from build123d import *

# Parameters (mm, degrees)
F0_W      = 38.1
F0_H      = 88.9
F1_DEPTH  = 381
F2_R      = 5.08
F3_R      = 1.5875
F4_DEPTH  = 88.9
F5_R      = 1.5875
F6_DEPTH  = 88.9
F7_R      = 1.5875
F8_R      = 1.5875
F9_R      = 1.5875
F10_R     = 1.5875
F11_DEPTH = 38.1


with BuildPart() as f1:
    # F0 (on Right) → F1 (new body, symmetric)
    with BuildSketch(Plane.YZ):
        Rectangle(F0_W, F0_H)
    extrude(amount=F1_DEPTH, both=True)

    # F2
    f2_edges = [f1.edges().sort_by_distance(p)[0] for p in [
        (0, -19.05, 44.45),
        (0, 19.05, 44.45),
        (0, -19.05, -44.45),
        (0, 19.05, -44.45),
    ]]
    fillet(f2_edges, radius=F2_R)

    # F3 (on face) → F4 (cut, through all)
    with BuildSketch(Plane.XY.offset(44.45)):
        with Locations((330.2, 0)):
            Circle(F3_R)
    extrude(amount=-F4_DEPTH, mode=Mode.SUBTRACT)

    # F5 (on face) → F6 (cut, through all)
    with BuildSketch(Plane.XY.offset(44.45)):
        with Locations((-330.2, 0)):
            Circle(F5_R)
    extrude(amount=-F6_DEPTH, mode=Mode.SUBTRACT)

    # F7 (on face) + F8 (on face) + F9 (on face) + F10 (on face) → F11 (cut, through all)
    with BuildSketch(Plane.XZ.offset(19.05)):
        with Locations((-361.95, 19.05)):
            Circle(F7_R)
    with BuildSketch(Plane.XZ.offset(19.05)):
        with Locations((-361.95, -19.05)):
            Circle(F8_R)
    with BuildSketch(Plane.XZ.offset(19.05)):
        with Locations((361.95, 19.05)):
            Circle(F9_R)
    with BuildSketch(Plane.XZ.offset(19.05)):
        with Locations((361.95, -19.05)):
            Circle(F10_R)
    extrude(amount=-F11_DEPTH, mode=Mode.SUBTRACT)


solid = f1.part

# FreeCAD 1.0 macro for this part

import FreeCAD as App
import Part
import Sketcher

V = App.Vector
Q = App.Units.Quantity


def edges_at(feature, points):
    """Names of the edges that pass closest to the given points."""
    edges = feature.Shape.Edges
    near = lambda p: min(range(len(edges)), key=lambda i: edges[i].distToShape(Part.Vertex(*p))[0])
    return sorted({f"Edge{near(p) + 1}" for p in points})


def add_polygon(sketch, points):
    """Adds a closed chain of lines whose ends are joined by coincident constraints."""
    first, n = sketch.GeometryCount, len(points)
    for a, b in zip(points, points[1:] + points[:1]):
        sketch.addGeometry(Part.LineSegment(App.Vector(*a, 0), App.Vector(*b, 0)), False)
    for i in range(n):
        sketch.addConstraint(Sketcher.Constraint("Coincident", first + i, 2, first + (i + 1) % n, 1))

doc = App.newDocument("Part")
body = doc.addObject("PartDesign::Body", "Body")

sketch1 = body.newObject("Sketcher::SketchObject", "Sketch")
sketch1.AttachmentSupport = (doc.getObject("YZ_Plane"), [""])
sketch1.MapMode = "FlatFace"
add_polygon(sketch1, [(-19, 44), (-19, -44), (19, -44), (19, 44)])
sketch1.addConstraint([
    Sketcher.Constraint("Vertical", 0),
    Sketcher.Constraint("Horizontal", 1),
    Sketcher.Constraint("Vertical", 2),
    Sketcher.Constraint("Horizontal", 3),
    Sketcher.Constraint("Symmetric", 0, 2, 2, 2, -1, 1),
    Sketcher.Constraint("DistanceX", 1, 1, 1, 2, Q("1.5 in")),
    Sketcher.Constraint("DistanceY", 0, 2, 0, 1, Q("3.5 in")),
])
pad1 = body.newObject("PartDesign::Pad", "Pad")
pad1.Profile = sketch1
pad1.Length = Q("30 in")
pad1.Midplane = True
doc.recompute()

fillet = body.newObject("PartDesign::Fillet", "Fillet")
fillet.Base = (pad1, edges_at(pad1, [
    (0, -19.05, 44.45),
    (0, 19.05, 44.45),
    (0, -19.05, -44.45),
    (0, 19.05, -44.45),
]))
fillet.Radius = Q("0.2 in")

sketch2 = body.newObject("Sketcher::SketchObject", "Sketch001")
sketch2.AttachmentSupport = (doc.getObject("XY_Plane"), [""])
sketch2.MapMode = "FlatFace"
sketch2.AttachmentOffset = App.Placement(V(0, 0, 1.75 * 25.4), App.Rotation())
sketch2.addGeometry(Part.Circle(V(330.2, 0, 0), V(0, 0, 1), 1.6), False)
sketch2.addConstraint([
    Sketcher.Constraint("PointOnObject", 0, 3, -1),
    Sketcher.Constraint("Diameter", 0, Q("0.125 in")),
    Sketcher.Constraint("DistanceX", -1, 1, 0, 3, Q("13 in")),
])
pocket1 = body.newObject("PartDesign::Pocket", "Pocket")
pocket1.Profile = sketch2
pocket1.Type = "ThroughAll"

sketch3 = body.newObject("Sketcher::SketchObject", "Sketch002")
sketch3.AttachmentSupport = (doc.getObject("XY_Plane"), [""])
sketch3.MapMode = "FlatFace"
sketch3.AttachmentOffset = App.Placement(V(0, 0, 1.75 * 25.4), App.Rotation())
sketch3.addGeometry(Part.Circle(V(-330.2, 0, 0), V(0, 0, 1), 1.6), False)
sketch3.addConstraint([
    Sketcher.Constraint("PointOnObject", 0, 3, -1),
    Sketcher.Constraint("Diameter", 0, Q("0.125 in")),
    Sketcher.Constraint("DistanceX", 0, 3, -1, 1, Q("13 in")),
])
pocket2 = body.newObject("PartDesign::Pocket", "Pocket001")
pocket2.Profile = sketch3
pocket2.Type = "ThroughAll"

sketch4 = body.newObject("Sketcher::SketchObject", "Sketch003")
sketch4.AttachmentSupport = (doc.getObject("XZ_Plane"), [""])
sketch4.MapMode = "FlatFace"
sketch4.AttachmentOffset = App.Placement(V(0, 0, 0.75 * 25.4), App.Rotation())
sketch4.addGeometry([
    Part.Circle(V(-361.9, 19.1, 0), V(0, 0, 1), 1.6),
    Part.Circle(V(-361.9, -19.1, 0), V(0, 0, 1), 1.6),
    Part.Circle(V(361.9, 19.1, 0), V(0, 0, 1), 1.6),
    Part.Circle(V(361.9, -19.1, 0), V(0, 0, 1), 1.6),
], False)
sketch4.addConstraint([
    Sketcher.Constraint("Equal", 0, 1),
    Sketcher.Constraint("Equal", 1, 2),
    Sketcher.Constraint("Equal", 2, 3),
    Sketcher.Constraint("Symmetric", 1, 3, 2, 3, -1, 1),
    Sketcher.Constraint("Symmetric", 0, 3, 3, 3, -1, 1),
    Sketcher.Constraint("Symmetric", 0, 3, 2, 3, -2),
    Sketcher.Constraint("Diameter", 0, Q("0.125 in")),
    Sketcher.Constraint("DistanceY", 1, 3, 0, 3, Q("1.5 in")),
    Sketcher.Constraint("DistanceX", 0, 3, 2, 3, Q("28.5 in")),
])
pocket3 = body.newObject("PartDesign::Pocket", "Pocket002")
pocket3.Profile = sketch4
pocket3.Type = "ThroughAll"

doc.recompute()
